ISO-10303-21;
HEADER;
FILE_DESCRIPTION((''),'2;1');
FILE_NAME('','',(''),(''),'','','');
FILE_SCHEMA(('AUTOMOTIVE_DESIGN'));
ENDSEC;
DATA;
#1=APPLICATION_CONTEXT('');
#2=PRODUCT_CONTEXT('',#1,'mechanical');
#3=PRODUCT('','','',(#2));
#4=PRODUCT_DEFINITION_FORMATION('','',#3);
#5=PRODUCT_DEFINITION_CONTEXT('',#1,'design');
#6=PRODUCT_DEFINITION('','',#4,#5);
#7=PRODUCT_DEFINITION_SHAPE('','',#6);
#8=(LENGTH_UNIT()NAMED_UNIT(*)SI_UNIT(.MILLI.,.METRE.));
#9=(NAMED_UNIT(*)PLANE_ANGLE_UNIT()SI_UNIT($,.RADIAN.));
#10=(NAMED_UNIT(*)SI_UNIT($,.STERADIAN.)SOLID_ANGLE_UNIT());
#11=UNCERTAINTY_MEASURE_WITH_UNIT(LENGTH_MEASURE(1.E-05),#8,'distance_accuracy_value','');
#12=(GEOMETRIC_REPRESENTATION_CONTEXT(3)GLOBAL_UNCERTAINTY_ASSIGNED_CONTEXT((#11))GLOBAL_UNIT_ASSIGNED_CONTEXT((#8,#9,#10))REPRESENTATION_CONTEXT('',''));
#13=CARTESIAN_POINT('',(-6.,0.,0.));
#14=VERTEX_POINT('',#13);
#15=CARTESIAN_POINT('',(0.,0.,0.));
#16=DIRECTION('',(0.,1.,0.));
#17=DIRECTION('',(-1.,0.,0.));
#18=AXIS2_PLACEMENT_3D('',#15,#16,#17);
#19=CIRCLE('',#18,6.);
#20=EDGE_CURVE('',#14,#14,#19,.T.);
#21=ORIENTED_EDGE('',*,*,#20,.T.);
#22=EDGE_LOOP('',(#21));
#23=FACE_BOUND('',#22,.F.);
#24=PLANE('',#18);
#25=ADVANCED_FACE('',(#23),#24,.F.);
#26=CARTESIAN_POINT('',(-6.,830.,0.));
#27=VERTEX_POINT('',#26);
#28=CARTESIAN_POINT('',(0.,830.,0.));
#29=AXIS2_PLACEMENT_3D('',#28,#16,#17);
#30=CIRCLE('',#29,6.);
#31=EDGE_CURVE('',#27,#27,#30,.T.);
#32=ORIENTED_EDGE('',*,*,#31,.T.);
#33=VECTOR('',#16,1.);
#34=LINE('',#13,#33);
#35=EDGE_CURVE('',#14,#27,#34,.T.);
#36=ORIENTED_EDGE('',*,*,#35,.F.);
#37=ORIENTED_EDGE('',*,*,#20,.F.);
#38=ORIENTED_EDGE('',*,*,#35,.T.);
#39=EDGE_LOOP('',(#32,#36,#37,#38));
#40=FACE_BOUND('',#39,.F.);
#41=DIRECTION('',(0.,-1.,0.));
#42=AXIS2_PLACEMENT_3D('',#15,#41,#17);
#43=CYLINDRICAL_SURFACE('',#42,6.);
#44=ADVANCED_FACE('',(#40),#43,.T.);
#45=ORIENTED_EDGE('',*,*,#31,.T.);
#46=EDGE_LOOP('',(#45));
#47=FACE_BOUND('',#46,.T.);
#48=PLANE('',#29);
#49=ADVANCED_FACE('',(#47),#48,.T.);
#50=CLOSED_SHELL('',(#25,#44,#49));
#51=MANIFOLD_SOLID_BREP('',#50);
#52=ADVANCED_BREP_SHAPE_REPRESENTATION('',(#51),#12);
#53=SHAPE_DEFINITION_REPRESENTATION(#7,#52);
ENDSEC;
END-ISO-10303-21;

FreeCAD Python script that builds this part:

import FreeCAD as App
import Part
import Sketcher
Q = App.Units.Quantity

doc = App.newDocument("Part")
params = doc.addObject("Spreadsheet::Sheet", "Params")
for row, (alias, value) in enumerate([
    ("sketch1_diameter", "12 mm"),
    ("pad1_length", "830 mm"),
], start=1):
    params.set(f"A{row}", alias)
    params.set(f"B{row}", "=" + value)
    params.setAlias(f"B{row}", alias)

body = doc.addObject("PartDesign::Body", "Body")

# Sketch on XZ plane
sketch1 = body.newObject("Sketcher::SketchObject", "Sketch")
sketch1.AttachmentSupport = (doc.getObject("XZ_Plane"), [""])
sketch1.MapMode = "FlatFace"
sketch1.addGeometry(Part.Circle(App.Vector(0, 0, 0), App.Vector(0, 0, 1), 6), False)
sketch1.addConstraint([
    Sketcher.Constraint("Coincident", 0, 3, -1, 1),
    Sketcher.Constraint("Diameter", 0, Q("12 mm")),
])
sketch1.setExpression("Constraints[1]", "Params.sketch1_diameter")
pad1 = body.newObject("PartDesign::Pad", "Pad")
pad1.Profile = sketch1
pad1.setExpression("Length", "Params.pad1_length")
pad1.Reversed = True

doc.recompute()
